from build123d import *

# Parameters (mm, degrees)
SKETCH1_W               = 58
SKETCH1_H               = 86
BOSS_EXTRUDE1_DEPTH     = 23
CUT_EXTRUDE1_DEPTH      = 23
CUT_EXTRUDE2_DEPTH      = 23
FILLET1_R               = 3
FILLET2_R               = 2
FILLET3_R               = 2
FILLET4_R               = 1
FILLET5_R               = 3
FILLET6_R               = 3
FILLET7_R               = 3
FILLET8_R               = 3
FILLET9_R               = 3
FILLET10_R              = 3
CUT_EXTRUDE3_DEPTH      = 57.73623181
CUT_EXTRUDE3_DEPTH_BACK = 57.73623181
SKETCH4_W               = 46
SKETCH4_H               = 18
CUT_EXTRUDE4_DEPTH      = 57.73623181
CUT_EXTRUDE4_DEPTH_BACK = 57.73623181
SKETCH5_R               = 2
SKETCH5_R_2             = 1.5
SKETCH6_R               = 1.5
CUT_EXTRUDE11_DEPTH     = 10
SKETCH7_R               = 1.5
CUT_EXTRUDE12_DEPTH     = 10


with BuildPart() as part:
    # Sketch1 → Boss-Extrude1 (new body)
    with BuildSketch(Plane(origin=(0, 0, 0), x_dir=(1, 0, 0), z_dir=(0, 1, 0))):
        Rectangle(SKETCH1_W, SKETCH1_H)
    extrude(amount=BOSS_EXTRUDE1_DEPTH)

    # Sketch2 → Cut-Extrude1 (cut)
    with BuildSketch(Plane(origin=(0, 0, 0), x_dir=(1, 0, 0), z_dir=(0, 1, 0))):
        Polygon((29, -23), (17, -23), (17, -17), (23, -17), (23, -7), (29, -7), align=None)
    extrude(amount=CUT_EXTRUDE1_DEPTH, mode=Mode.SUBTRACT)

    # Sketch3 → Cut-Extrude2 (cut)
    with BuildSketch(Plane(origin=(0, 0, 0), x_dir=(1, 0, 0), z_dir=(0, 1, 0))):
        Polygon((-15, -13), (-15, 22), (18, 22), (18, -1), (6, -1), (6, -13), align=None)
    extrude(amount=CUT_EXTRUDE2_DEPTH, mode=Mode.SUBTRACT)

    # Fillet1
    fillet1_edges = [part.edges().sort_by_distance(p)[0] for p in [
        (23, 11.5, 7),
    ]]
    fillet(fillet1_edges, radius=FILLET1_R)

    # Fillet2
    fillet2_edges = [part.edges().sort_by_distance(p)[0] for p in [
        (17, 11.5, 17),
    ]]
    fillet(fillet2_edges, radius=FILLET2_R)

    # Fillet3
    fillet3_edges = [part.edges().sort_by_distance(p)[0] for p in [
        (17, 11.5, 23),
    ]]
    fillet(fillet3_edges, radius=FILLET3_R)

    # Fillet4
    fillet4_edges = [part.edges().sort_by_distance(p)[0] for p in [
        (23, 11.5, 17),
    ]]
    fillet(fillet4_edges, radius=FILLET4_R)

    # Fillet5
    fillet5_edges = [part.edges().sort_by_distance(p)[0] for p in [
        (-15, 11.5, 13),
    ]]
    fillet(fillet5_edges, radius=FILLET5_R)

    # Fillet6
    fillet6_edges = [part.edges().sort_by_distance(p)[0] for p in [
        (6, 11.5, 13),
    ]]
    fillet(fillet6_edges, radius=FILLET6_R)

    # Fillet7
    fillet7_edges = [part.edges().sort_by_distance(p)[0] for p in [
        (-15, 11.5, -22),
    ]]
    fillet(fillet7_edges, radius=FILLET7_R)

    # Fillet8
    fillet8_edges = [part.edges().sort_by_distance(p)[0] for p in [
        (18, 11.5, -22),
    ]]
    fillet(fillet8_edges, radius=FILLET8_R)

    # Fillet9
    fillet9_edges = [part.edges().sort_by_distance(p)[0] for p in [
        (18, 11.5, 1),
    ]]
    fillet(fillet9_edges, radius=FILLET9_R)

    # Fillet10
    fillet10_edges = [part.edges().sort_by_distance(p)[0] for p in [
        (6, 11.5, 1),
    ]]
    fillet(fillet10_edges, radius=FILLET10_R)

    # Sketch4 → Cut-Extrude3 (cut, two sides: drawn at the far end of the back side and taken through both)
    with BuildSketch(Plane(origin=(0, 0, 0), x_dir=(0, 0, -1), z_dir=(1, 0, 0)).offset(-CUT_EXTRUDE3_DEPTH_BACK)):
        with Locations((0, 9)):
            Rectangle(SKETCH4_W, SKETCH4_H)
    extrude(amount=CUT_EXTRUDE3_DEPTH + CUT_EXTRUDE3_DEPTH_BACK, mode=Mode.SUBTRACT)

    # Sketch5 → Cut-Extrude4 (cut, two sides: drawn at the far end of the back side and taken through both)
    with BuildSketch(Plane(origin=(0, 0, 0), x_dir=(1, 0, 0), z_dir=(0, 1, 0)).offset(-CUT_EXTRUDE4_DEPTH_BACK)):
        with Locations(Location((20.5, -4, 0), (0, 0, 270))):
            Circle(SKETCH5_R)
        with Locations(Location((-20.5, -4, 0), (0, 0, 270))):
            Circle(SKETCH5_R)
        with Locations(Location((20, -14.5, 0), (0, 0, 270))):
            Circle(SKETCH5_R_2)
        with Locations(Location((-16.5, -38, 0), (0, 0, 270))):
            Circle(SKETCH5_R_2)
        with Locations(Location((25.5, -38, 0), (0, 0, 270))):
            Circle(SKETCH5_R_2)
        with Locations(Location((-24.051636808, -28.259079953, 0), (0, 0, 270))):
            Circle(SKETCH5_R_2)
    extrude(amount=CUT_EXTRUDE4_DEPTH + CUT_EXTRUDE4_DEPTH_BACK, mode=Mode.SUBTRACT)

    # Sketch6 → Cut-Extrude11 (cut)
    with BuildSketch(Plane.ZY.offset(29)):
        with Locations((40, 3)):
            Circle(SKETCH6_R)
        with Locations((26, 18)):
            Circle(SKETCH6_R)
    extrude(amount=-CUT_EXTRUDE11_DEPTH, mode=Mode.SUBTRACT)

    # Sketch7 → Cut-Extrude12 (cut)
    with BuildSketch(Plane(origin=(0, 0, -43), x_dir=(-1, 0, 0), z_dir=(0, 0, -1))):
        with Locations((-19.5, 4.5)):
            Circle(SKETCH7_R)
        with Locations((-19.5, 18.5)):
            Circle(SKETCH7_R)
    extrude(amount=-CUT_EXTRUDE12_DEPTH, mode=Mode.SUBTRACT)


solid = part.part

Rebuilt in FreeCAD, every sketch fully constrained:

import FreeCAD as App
import Part
import Sketcher


def edges_at(feature, points):
    """Names of the edges that pass closest to the given points."""
    edges = feature.Shape.Edges
    near = lambda p: min(range(len(edges)), key=lambda i: edges[i].distToShape(Part.Vertex(*p))[0])
    return sorted({f"Edge{near(p) + 1}" for p in points})


def add_polygon(sketch, points):
    """Adds a closed chain of lines whose ends are joined by coincident constraints."""
    first, n = sketch.GeometryCount, len(points)
    for a, b in zip(points, points[1:] + points[:1]):
        sketch.addGeometry(Part.LineSegment(App.Vector(*a, 0), App.Vector(*b, 0)), False)
    for i in range(n):
        sketch.addConstraint(Sketcher.Constraint("Coincident", first + i, 2, first + (i + 1) % n, 1))

doc = App.newDocument("Part")
body = doc.addObject("PartDesign::Body", "Body")

sketch1 = body.newObject("Sketcher::SketchObject", "Sketch")
sketch1.AttachmentSupport = (doc.getObject("XZ_Plane"), [""])
sketch1.MapMode = "FlatFace"
add_polygon(sketch1, [(-29, -43), (-29, 43), (29, 43), (29, -43)])
sketch1.addConstraint(Sketcher.Constraint("Vertical", 0))
sketch1.addConstraint(Sketcher.Constraint("Horizontal", 1))
sketch1.addConstraint(Sketcher.Constraint("Vertical", 2))
sketch1.addConstraint(Sketcher.Constraint("Horizontal", 3))
sketch1.addConstraint(Sketcher.Constraint("Symmetric", 0, 2, 2, 2, -1, 1))
sketch1.addConstraint(Sketcher.Constraint("DistanceX", 1, 1, 1, 2, 58.0))
sketch1.addConstraint(Sketcher.Constraint("DistanceY", 0, 1, 0, 2, 86.0))
pad1 = body.newObject("PartDesign::Pad", "Pad")
pad1.Profile = sketch1
pad1.Length = 23
pad1.Reversed = True

sketch2 = body.newObject("Sketcher::SketchObject", "Sketch001")
sketch2.AttachmentSupport = (doc.getObject("XZ_Plane"), [""])
sketch2.MapMode = "FlatFace"
add_polygon(sketch2, [(17, 23), (29, 23), (29, 7), (23, 7), (23, 17), (17, 17)])
sketch2.addConstraint(Sketcher.Constraint("Horizontal", 0))
sketch2.addConstraint(Sketcher.Constraint("Vertical", 1))
sketch2.addConstraint(Sketcher.Constraint("Horizontal", 2))
sketch2.addConstraint(Sketcher.Constraint("Vertical", 3))
sketch2.addConstraint(Sketcher.Constraint("Horizontal", 4))
sketch2.addConstraint(Sketcher.Constraint("Vertical", 5))
sketch2.addConstraint(Sketcher.Constraint("Equal", 2, 4))
sketch2.addConstraint(Sketcher.Constraint("Equal", 4, 5))
sketch2.addConstraint(Sketcher.Constraint("DistanceX", 0, 1, 0, 2, 12.0))
sketch2.addConstraint(Sketcher.Constraint("DistanceY", 1, 2, 1, 1, 16.0))
sketch2.addConstraint(Sketcher.Constraint("DistanceX", -1, 1, 0, 2, 29.0))
sketch2.addConstraint(Sketcher.Constraint("DistanceY", -1, 1, 0, 2, 23.0))
pocket1 = body.newObject("PartDesign::Pocket", "Pocket")
pocket1.Profile = sketch2
pocket1.Length = 23

sketch3 = body.newObject("Sketcher::SketchObject", "Sketch002")
sketch3.AttachmentSupport = (doc.getObject("XZ_Plane"), [""])
sketch3.MapMode = "FlatFace"
add_polygon(sketch3, [(-15, -22), (-15, 13), (6, 13), (6, 1), (18, 1), (18, -22)])
sketch3.addConstraint(Sketcher.Constraint("Vertical", 0))
sketch3.addConstraint(Sketcher.Constraint("Horizontal", 1))
sketch3.addConstraint(Sketcher.Constraint("Vertical", 2))
sketch3.addConstraint(Sketcher.Constraint("Horizontal", 3))
sketch3.addConstraint(Sketcher.Constraint("Vertical", 4))
sketch3.addConstraint(Sketcher.Constraint("Horizontal", 5))
sketch3.addConstraint(Sketcher.Constraint("Equal", 3, 2))
sketch3.addConstraint(Sketcher.Constraint("DistanceX", 1, 1, 1, 2, 21.0))
sketch3.addConstraint(Sketcher.Constraint("DistanceX", 3, 1, 3, 2, 12.0))
sketch3.addConstraint(Sketcher.Constraint("DistanceY", 0, 1, 0, 2, 35.0))
sketch3.addConstraint(Sketcher.Constraint("DistanceX", 0, 2, -1, 1, 15.0))
sketch3.addConstraint(Sketcher.Constraint("DistanceY", -1, 1, 0, 2, 13.0))
pocket2 = body.newObject("PartDesign::Pocket", "Pocket001")
pocket2.Profile = sketch3
pocket2.Length = 23
doc.recompute()

fillet = body.newObject("PartDesign::Fillet", "Fillet")
fillet.Base = (pocket2, edges_at(pocket2, [(23, 11.5, 7)]))
fillet.Radius = 3
doc.recompute()

fillet2 = body.newObject("PartDesign::Fillet", "Fillet001")
fillet2.Base = (fillet, edges_at(fillet, [(17, 11.5, 17)]))
fillet2.Radius = 2
doc.recompute()

fillet3 = body.newObject("PartDesign::Fillet", "Fillet002")
fillet3.Base = (fillet2, edges_at(fillet2, [(17, 11.5, 23)]))
fillet3.Radius = 2
doc.recompute()

fillet4 = body.newObject("PartDesign::Fillet", "Fillet003")
fillet4.Base = (fillet3, edges_at(fillet3, [(23, 11.5, 17)]))
fillet4.Radius = 1
doc.recompute()

fillet5 = body.newObject("PartDesign::Fillet", "Fillet004")
fillet5.Base = (fillet4, edges_at(fillet4, [(-15, 11.5, 13)]))
fillet5.Radius = 3
doc.recompute()

fillet6 = body.newObject("PartDesign::Fillet", "Fillet005")
fillet6.Base = (fillet5, edges_at(fillet5, [(6, 11.5, 13)]))
fillet6.Radius = 3
doc.recompute()

fillet7 = body.newObject("PartDesign::Fillet", "Fillet006")
fillet7.Base = (fillet6, edges_at(fillet6, [(-15, 11.5, -22)]))
fillet7.Radius = 3
doc.recompute()

fillet8 = body.newObject("PartDesign::Fillet", "Fillet007")
fillet8.Base = (fillet7, edges_at(fillet7, [(18, 11.5, -22)]))
fillet8.Radius = 3
doc.recompute()

fillet9 = body.newObject("PartDesign::Fillet", "Fillet008")
fillet9.Base = (fillet8, edges_at(fillet8, [(18, 11.5, 1)]))
fillet9.Radius = 3
doc.recompute()

fillet10 = body.newObject("PartDesign::Fillet", "Fillet009")
fillet10.Base = (fillet9, edges_at(fillet9, [(6, 11.5, 1)]))
fillet10.Radius = 3

sketch4 = body.newObject("Sketcher::SketchObject", "Sketch003")
sketch4.AttachmentSupport = (doc.getObject("YZ_Plane"), [""])
sketch4.MapMode = "FlatFace"
add_polygon(sketch4, [(18, 23), (0, 23), (0, -23), (18, -23)])
sketch4.addConstraint(Sketcher.Constraint("Horizontal", 0))
sketch4.addConstraint(Sketcher.Constraint("Vertical", 1))
sketch4.addConstraint(Sketcher.Constraint("Horizontal", 2))
sketch4.addConstraint(Sketcher.Constraint("Vertical", 3))
sketch4.addConstraint(Sketcher.Constraint("Symmetric", 0, 2, 1, 2, -1, 1))
sketch4.addConstraint(Sketcher.Constraint("DistanceX", 0, 2, 0, 1, 18.0))
sketch4.addConstraint(Sketcher.Constraint("DistanceY", 1, 2, 1, 1, 46.0))
pocket3 = body.newObject("PartDesign::Pocket", "Pocket002")
pocket3.Profile = sketch4
pocket3.Type = "ThroughAll"
pocket3.Midplane = True

sketch5 = body.newObject("Sketcher::SketchObject", "Sketch004")
sketch5.AttachmentSupport = (doc.getObject("XZ_Plane"), [""])
sketch5.MapMode = "FlatFace"
sketch5.addGeometry(Part.Circle(App.Vector(20.5, 4, 0), App.Vector(0, 0, 1), 2), False)
sketch5.addGeometry(Part.Circle(App.Vector(-20.5, 4, 0), App.Vector(0, 0, 1), 2), False)
sketch5.addGeometry(Part.Circle(App.Vector(20, 14.5, 0), App.Vector(0, 0, 1), 1.5), False)
sketch5.addGeometry(Part.Circle(App.Vector(-16.5, 38, 0), App.Vector(0, 0, 1), 1.5), False)
sketch5.addGeometry(Part.Circle(App.Vector(25.5, 38, 0), App.Vector(0, 0, 1), 1.5), False)
sketch5.addGeometry(Part.Circle(App.Vector(-24.051637, 28.25908, 0), App.Vector(0, 0, 1), 1.5), False)
sketch5.addConstraint(Sketcher.Constraint("Equal", 0, 1))
sketch5.addConstraint(Sketcher.Constraint("Equal", 2, 3))
sketch5.addConstraint(Sketcher.Constraint("Equal", 3, 4))
sketch5.addConstraint(Sketcher.Constraint("Equal", 4, 5))
sketch5.addConstraint(Sketcher.Constraint("Symmetric", 0, 3, 1, 3, -2))
sketch5.addConstraint(Sketcher.Constraint("Horizontal", 3, 3, 4, 3))
sketch5.addConstraint(Sketcher.Constraint("Diameter", 0, 4.0))
sketch5.addConstraint(Sketcher.Constraint("Diameter", 2, 3.0))
sketch5.addConstraint(Sketcher.Constraint("DistanceY", -1, 1, 0, 3, 4.0))
sketch5.addConstraint(Sketcher.Constraint("DistanceX", -1, 1, 2, 3, 20.0))
sketch5.addConstraint(Sketcher.Constraint("DistanceY", -1, 1, 3, 3, 38.0))
sketch5.addConstraint(Sketcher.Constraint("DistanceX", 1, 3, 0, 3, 41.0))
sketch5.addConstraint(Sketcher.Constraint("DistanceX", 1, 3, 3, 3, 4.0))
sketch5.addConstraint(Sketcher.Constraint("DistanceX", 0, 3, 4, 3, 5.0))
sketch5.addConstraint(Sketcher.Constraint("DistanceY", -1, 1, 2, 3, 14.5))
sketch5.addConstraint(Sketcher.Constraint("DistanceY", -1, 1, 5, 3, 28.25908))
sketch5.addConstraint(Sketcher.Constraint("DistanceX", 5, 3, -1, 1, 24.051637))
pocket4 = body.newObject("PartDesign::Pocket", "Pocket003")
pocket4.Profile = sketch5
pocket4.Type = "ThroughAll"
pocket4.Midplane = True

sketch6 = body.newObject("Sketcher::SketchObject", "Sketch005")
sketch6.AttachmentSupport = (doc.getObject("YZ_Plane"), [""])
sketch6.MapMode = "FlatFace"
sketch6.AttachmentOffset = App.Placement(App.Vector(0, 0, -29), App.Rotation())
sketch6.addGeometry(Part.Circle(App.Vector(3, 40, 0), App.Vector(0, 0, 1), 1.5), False)
sketch6.addGeometry(Part.Circle(App.Vector(18, 26, 0), App.Vector(0, 0, 1), 1.5), False)
sketch6.addConstraint(Sketcher.Constraint("Equal", 0, 1))
sketch6.addConstraint(Sketcher.Constraint("Diameter", 0, 3.0))
sketch6.addConstraint(Sketcher.Constraint("DistanceX", -1, 1, 0, 3, 3.0))
sketch6.addConstraint(Sketcher.Constraint("DistanceY", -1, 1, 0, 3, 40.0))
sketch6.addConstraint(Sketcher.Constraint("DistanceX", -1, 1, 1, 3, 18.0))
sketch6.addConstraint(Sketcher.Constraint("DistanceY", -1, 1, 1, 3, 26.0))
pocket5 = body.newObject("PartDesign::Pocket", "Pocket004")
pocket5.Profile = sketch6
pocket5.Length = 10
pocket5.Reversed = True

sketch7 = body.newObject("Sketcher::SketchObject", "Sketch006")
sketch7.AttachmentSupport = (doc.getObject("XY_Plane"), [""])
sketch7.MapMode = "FlatFace"
sketch7.AttachmentOffset = App.Placement(App.Vector(0, 0, -43), App.Rotation())
sketch7.addGeometry(Part.Circle(App.Vector(19.5, 4.5, 0), App.Vector(0, 0, 1), 1.5), False)
sketch7.addGeometry(Part.Circle(App.Vector(19.5, 18.5, 0), App.Vector(0, 0, 1), 1.5), False)
sketch7.addConstraint(Sketcher.Constraint("Equal", 0, 1))
sketch7.addConstraint(Sketcher.Constraint("Vertical", 0, 3, 1, 3))
sketch7.addConstraint(Sketcher.Constraint("Diameter", 0, 3.0))
sketch7.addConstraint(Sketcher.Constraint("DistanceY", 0, 3, 1, 3, 14.0))
sketch7.addConstraint(Sketcher.Constraint("DistanceX", -1, 1, 0, 3, 19.5))
sketch7.addConstraint(Sketcher.Constraint("DistanceY", -1, 1, 0, 3, 4.5))
pocket6 = body.newObject("PartDesign::Pocket", "Pocket005")
pocket6.Profile = sketch7
pocket6.Length = 10
pocket6.Reversed = True

doc.recompute()
